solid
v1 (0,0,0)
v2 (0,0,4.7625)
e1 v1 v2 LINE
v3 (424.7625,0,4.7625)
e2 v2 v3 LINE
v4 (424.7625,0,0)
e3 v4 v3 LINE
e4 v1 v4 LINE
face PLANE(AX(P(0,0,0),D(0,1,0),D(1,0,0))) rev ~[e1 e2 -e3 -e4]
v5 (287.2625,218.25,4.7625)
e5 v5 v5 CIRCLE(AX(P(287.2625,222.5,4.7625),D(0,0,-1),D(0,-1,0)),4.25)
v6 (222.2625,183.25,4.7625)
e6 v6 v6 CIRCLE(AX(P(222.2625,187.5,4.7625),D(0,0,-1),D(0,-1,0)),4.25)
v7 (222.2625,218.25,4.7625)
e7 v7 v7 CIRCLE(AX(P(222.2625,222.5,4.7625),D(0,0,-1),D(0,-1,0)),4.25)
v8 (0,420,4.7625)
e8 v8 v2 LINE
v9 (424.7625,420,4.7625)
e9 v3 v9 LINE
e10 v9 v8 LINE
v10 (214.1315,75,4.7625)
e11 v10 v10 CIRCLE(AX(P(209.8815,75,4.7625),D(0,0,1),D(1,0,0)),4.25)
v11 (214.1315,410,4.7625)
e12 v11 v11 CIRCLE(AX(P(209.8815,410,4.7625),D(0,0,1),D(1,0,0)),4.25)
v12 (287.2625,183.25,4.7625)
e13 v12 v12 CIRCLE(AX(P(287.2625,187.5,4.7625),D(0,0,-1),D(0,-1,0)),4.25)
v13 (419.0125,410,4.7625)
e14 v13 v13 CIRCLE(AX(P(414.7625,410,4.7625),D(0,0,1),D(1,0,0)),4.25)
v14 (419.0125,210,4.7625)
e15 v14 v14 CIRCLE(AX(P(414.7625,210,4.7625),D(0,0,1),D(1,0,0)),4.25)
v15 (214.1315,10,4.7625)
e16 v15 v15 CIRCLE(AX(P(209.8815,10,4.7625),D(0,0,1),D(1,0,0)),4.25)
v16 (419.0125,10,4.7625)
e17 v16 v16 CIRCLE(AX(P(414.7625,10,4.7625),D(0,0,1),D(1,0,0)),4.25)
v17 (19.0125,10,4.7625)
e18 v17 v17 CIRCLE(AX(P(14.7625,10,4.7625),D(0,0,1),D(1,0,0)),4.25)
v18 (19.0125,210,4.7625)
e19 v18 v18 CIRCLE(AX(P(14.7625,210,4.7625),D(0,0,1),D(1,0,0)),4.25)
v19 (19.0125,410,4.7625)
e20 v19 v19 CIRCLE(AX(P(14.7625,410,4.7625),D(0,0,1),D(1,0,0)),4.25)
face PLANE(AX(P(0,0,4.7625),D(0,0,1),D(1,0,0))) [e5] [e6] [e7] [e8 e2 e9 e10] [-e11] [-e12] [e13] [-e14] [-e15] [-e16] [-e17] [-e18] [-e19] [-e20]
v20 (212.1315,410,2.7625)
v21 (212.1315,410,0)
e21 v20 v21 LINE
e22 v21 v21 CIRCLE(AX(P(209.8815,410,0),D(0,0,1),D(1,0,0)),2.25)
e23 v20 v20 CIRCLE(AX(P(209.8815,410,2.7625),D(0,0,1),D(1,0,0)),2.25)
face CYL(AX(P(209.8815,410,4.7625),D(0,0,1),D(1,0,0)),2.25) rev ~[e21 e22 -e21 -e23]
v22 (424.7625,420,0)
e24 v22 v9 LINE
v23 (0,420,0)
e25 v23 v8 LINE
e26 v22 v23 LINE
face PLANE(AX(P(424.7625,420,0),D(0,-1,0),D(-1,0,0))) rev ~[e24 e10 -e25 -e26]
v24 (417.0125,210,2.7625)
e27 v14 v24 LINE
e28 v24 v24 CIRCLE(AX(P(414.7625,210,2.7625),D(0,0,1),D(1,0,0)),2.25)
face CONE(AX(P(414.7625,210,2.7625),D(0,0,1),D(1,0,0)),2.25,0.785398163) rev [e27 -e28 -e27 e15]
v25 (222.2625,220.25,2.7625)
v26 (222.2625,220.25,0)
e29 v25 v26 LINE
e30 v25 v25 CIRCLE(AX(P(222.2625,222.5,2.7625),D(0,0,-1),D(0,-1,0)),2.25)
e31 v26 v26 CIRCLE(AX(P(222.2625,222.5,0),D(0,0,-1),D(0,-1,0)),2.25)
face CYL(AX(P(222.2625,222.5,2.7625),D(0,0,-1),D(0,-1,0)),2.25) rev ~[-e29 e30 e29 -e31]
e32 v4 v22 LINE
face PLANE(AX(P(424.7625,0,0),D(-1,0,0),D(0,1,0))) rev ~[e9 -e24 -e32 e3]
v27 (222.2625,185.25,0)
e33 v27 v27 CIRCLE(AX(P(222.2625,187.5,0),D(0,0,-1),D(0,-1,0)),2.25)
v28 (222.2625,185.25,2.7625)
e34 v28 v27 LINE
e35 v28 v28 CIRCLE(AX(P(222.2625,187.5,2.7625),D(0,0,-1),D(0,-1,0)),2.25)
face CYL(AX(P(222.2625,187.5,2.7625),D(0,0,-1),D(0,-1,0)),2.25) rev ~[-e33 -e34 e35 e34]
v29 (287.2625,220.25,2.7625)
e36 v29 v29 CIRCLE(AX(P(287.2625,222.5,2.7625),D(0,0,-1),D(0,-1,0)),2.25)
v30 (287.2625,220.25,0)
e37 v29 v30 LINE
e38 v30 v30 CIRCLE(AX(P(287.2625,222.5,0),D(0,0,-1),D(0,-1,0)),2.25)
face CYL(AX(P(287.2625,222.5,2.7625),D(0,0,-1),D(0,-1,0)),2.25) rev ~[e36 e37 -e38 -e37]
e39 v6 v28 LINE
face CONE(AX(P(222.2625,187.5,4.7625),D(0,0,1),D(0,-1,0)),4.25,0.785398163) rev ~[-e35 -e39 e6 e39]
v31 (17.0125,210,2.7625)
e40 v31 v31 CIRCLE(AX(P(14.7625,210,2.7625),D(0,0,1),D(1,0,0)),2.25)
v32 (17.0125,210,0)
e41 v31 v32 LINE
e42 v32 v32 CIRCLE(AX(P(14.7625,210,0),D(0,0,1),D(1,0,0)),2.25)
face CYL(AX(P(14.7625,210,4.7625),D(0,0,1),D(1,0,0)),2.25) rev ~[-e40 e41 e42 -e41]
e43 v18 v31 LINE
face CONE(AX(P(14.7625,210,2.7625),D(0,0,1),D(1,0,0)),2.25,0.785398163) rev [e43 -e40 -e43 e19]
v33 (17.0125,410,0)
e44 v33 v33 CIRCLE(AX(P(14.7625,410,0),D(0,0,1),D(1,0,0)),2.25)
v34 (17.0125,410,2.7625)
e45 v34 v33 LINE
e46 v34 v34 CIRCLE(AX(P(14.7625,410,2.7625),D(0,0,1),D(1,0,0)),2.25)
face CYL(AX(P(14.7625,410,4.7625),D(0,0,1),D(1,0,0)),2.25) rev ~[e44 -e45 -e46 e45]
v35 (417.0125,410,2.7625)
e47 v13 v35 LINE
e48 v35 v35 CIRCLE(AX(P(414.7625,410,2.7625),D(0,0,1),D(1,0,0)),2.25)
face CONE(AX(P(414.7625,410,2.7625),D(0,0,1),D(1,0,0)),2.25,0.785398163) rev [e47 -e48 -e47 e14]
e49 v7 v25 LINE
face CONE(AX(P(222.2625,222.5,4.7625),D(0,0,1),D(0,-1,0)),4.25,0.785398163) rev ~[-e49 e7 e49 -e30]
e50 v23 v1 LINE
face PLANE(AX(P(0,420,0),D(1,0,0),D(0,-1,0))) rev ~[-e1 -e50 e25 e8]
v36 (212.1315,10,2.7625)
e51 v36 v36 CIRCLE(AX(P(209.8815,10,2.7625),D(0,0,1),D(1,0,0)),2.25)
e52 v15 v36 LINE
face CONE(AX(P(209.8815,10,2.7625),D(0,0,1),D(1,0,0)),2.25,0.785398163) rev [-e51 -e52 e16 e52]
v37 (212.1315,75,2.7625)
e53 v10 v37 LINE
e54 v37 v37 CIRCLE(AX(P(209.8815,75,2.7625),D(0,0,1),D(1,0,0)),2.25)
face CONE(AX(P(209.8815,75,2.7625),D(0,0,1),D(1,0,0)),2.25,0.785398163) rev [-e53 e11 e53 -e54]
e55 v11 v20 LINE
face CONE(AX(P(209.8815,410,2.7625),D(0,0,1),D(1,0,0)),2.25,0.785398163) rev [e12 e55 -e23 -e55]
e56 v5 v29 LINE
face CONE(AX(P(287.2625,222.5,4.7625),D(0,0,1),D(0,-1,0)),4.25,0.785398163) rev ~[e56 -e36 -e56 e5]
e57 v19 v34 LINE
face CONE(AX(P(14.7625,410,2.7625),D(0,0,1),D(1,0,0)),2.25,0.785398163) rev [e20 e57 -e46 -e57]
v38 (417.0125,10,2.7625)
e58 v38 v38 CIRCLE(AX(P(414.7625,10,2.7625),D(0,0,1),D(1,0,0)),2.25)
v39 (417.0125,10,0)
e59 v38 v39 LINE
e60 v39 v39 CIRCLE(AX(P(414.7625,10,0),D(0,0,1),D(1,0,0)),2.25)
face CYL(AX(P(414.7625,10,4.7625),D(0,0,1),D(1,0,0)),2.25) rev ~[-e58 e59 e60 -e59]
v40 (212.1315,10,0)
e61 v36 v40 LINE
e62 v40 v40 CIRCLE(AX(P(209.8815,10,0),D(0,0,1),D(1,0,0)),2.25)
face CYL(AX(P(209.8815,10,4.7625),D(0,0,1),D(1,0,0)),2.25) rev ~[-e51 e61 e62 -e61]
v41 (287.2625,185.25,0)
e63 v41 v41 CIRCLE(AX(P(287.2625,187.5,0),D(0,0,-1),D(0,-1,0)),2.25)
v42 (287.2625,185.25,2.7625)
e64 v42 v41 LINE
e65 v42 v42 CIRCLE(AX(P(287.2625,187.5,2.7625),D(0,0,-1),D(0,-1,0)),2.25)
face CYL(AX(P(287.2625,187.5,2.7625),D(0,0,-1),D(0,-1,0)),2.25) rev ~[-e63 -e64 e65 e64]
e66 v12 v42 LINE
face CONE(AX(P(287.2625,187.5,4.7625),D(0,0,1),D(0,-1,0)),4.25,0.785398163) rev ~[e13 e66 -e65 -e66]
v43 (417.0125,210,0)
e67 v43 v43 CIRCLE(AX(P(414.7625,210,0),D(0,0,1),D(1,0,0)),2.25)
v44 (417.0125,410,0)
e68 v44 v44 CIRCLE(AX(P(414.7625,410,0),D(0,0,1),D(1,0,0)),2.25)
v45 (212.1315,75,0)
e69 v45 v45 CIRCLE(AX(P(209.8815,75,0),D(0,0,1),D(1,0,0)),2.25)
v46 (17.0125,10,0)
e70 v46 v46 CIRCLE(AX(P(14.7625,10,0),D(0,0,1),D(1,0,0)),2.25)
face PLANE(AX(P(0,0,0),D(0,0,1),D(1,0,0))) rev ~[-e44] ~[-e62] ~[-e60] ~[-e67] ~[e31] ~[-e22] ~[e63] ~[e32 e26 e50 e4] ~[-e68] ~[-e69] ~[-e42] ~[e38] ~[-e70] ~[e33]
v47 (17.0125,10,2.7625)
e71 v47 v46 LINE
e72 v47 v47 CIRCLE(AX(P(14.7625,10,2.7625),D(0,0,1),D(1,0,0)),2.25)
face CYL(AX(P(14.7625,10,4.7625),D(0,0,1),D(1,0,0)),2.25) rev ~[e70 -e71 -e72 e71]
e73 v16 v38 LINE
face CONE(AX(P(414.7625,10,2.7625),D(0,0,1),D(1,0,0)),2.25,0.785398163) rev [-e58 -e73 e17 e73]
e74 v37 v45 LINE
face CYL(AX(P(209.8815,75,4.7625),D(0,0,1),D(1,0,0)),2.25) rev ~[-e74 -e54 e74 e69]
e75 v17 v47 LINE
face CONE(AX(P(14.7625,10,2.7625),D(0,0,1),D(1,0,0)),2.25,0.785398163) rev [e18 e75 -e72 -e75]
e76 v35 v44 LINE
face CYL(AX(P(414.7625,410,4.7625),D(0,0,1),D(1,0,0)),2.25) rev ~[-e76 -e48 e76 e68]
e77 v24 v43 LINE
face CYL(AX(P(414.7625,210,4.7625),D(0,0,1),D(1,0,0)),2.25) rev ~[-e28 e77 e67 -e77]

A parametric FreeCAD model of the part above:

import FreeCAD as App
import Part
import Sketcher
from FreeCAD import Vector


def edges_at(feature, points):
    """Names of the edges that pass closest to the given points."""
    edges = feature.Shape.Edges
    near = lambda p: min(range(len(edges)), key=lambda i: edges[i].distToShape(Part.Vertex(*p))[0])
    return sorted({f"Edge{near(p) + 1}" for p in points})

doc = App.newDocument("Part")
body = doc.addObject("PartDesign::Body", "Body")

# Sketch on XY plane
sketch1 = doc.addObject("Sketcher::SketchObject", "Sketch")
body.addObject(sketch1)
sketch1.AttachmentSupport = (doc.XY_Plane, [""])
sketch1.MapMode = "FlatFace"
sketch1.addGeometry([
    Part.LineSegment(Vector(0, 420, 0), Vector(0, 0, 0)),
    Part.LineSegment(Vector(0, 0, 0), Vector(425, 0, 0)),
    Part.LineSegment(Vector(425, 0, 0), Vector(425, 420, 0)),
    Part.LineSegment(Vector(425, 420, 0), Vector(0, 420, 0)),
], False)
sketch1.addConstraint([
    Sketcher.Constraint("Coincident", 0, 2, 1, 1),
    Sketcher.Constraint("Coincident", 1, 2, 2, 1),
    Sketcher.Constraint("Coincident", 2, 2, 3, 1),
    Sketcher.Constraint("Coincident", 3, 2, 0, 1),
    Sketcher.Constraint("Vertical", 0),
    Sketcher.Constraint("Horizontal", 1),
    Sketcher.Constraint("Vertical", 2),
    Sketcher.Constraint("Horizontal", 3),
    Sketcher.Constraint("Coincident", 0, 2, -1, 1),
    Sketcher.Constraint("DistanceY", 0, 2, 0, 1, 420.0),
    Sketcher.Constraint("DistanceX", 1, 1, 1, 2, 424.7625),
])
pad1 = doc.addObject("PartDesign::Pad", "Pad")
body.addObject(pad1)
pad1.Profile = sketch1
pad1.Length = 4.7625

# Sketch on XY plane
sketch2 = doc.addObject("Sketcher::SketchObject", "Sketch001")
body.addObject(sketch2)
sketch2.AttachmentSupport = (doc.XY_Plane, [""])
sketch2.MapMode = "FlatFace"
sketch2.AttachmentOffset = App.Placement(Vector(0, 0, 4.7625), App.Rotation())
sketch2.addGeometry([
    Part.Circle(Vector(14.8, 410, 0), Vector(0, 0, 1), 2.2),  # 0
    Part.Circle(Vector(414.8, 410, 0), Vector(0, 0, 1), 2.2),  # 1
    Part.Circle(Vector(14.8, 10, 0), Vector(0, 0, 1), 2.2),  # 2
    Part.Circle(Vector(414.8, 10, 0), Vector(0, 0, 1), 2.2),  # 3
    Part.Circle(Vector(14.8, 210, 0), Vector(0, 0, 1), 2.2),  # 4
    Part.Circle(Vector(414.8, 210, 0), Vector(0, 0, 1), 2.2),  # 5
    Part.Circle(Vector(209.9, 410, 0), Vector(0, 0, 1), 2.2),  # 6
    Part.Circle(Vector(209.9, 10, 0), Vector(0, 0, 1), 2.2),  # 7
    Part.Circle(Vector(209.9, 75, 0), Vector(0, 0, 1), 2.2),  # 8
], False)
sketch2.addConstraint([
    Sketcher.Constraint("Equal", 0, 1),
    Sketcher.Constraint("Equal", 1, 2),
    Sketcher.Constraint("Equal", 2, 3),
    Sketcher.Constraint("Equal", 3, 4),
    Sketcher.Constraint("Equal", 4, 5),
    Sketcher.Constraint("Equal", 5, 6),
    Sketcher.Constraint("Equal", 6, 7),
    Sketcher.Constraint("Equal", 7, 8),
    Sketcher.Constraint("Horizontal", 0, 3, 1, 3),
    Sketcher.Constraint("Horizontal", 2, 3, 3, 3),
    Sketcher.Constraint("Horizontal", 4, 3, 5, 3),
    Sketcher.Constraint("Horizontal", 1, 3, 6, 3),
    Sketcher.Constraint("Horizontal", 3, 3, 7, 3),
    Sketcher.Constraint("Vertical", 0, 3, 2, 3),
    Sketcher.Constraint("Vertical", 1, 3, 3, 3),
    Sketcher.Constraint("Vertical", 2, 3, 4, 3),
    Sketcher.Constraint("Vertical", 3, 3, 5, 3),
    Sketcher.Constraint("Vertical", 6, 3, 7, 3),
    Sketcher.Constraint("Vertical", 7, 3, 8, 3),
    Sketcher.Constraint("Diameter", 0, 4.5),
    Sketcher.Constraint("DistanceY", -1, 1, 2, 3, 10.0),
    Sketcher.Constraint("DistanceY", -1, 1, 4, 3, 210.0),
    Sketcher.Constraint("DistanceY", -1, 1, 8, 3, 75.0),
    Sketcher.Constraint("DistanceY", -1, 1, 0, 3, 410.0),
    Sketcher.Constraint("DistanceX", 0, 3, 1, 3, 400.0),
    Sketcher.Constraint("DistanceX", -1, 1, 0, 3, 14.7625),
    Sketcher.Constraint("DistanceX", -1, 1, 6, 3, 209.8815),
])
pocket1 = doc.addObject("PartDesign::Pocket", "Pocket")
body.addObject(pocket1)
pocket1.Profile = sketch2
pocket1.Type = "UpToFirst"
doc.recompute()

chamfer = doc.addObject("PartDesign::Chamfer", "Chamfer")
body.addObject(chamfer)
chamfer.Base = (pocket1, edges_at(pocket1, [
    (12.512, 410, 4.763),
    (207.631, 410, 4.763),
    (412.512, 410, 4.763),
    (412.512, 210, 4.763),
    (12.512, 210, 4.763),
    (12.512, 10, 4.763),
    (207.631, 10, 4.763),
    (412.512, 10, 4.763),
    (207.631, 75, 4.763),
]))
chamfer.Size = 2

# Sketch on XY plane
sketch3 = doc.addObject("Sketcher::SketchObject", "Sketch002")
body.addObject(sketch3)
sketch3.AttachmentSupport = (doc.XY_Plane, [""])
sketch3.MapMode = "FlatFace"
sketch3.AttachmentOffset = App.Placement(Vector(0, 0, 4.7625), App.Rotation())
sketch3.addGeometry([
    Part.Circle(Vector(222.3, 222.5, 0), Vector(0, 0, 1), 2.2),
    Part.Circle(Vector(287.3, 222.5, 0), Vector(0, 0, 1), 2.2),
    Part.Circle(Vector(222.3, 187.5, 0), Vector(0, 0, 1), 2.2),
    Part.Circle(Vector(287.3, 187.5, 0), Vector(0, 0, 1), 2.2),
], False)
sketch3.addConstraint([
    Sketcher.Constraint("Equal", 0, 1),
    Sketcher.Constraint("Equal", 1, 2),
    Sketcher.Constraint("Equal", 2, 3),
    Sketcher.Constraint("Horizontal", 0, 3, 1, 3),
    Sketcher.Constraint("Horizontal", 2, 3, 3, 3),
    Sketcher.Constraint("Vertical", 0, 3, 2, 3),
    Sketcher.Constraint("Vertical", 1, 3, 3, 3),
    Sketcher.Constraint("Diameter", 0, 4.5),
    Sketcher.Constraint("DistanceX", 0, 3, 1, 3, 65.0),
    Sketcher.Constraint("DistanceY", 2, 3, 0, 3, 35.0),
    Sketcher.Constraint("DistanceY", -1, 1, 0, 3, 222.5),
    Sketcher.Constraint("DistanceX", -1, 1, 0, 3, 222.2625),
])
doc.recompute()
hole = doc.addObject("PartDesign::Hole", "Hole")
body.addObject(hole)
hole.Profile = sketch3
hole.ThreadType = "None"
hole.Diameter = 4.5
hole.DepthType = "ThroughAll"
hole.HoleCutType = "Countersink"
hole.HoleCutDiameter = 8.5
hole.HoleCutCountersinkAngle = 90

doc.recompute()
